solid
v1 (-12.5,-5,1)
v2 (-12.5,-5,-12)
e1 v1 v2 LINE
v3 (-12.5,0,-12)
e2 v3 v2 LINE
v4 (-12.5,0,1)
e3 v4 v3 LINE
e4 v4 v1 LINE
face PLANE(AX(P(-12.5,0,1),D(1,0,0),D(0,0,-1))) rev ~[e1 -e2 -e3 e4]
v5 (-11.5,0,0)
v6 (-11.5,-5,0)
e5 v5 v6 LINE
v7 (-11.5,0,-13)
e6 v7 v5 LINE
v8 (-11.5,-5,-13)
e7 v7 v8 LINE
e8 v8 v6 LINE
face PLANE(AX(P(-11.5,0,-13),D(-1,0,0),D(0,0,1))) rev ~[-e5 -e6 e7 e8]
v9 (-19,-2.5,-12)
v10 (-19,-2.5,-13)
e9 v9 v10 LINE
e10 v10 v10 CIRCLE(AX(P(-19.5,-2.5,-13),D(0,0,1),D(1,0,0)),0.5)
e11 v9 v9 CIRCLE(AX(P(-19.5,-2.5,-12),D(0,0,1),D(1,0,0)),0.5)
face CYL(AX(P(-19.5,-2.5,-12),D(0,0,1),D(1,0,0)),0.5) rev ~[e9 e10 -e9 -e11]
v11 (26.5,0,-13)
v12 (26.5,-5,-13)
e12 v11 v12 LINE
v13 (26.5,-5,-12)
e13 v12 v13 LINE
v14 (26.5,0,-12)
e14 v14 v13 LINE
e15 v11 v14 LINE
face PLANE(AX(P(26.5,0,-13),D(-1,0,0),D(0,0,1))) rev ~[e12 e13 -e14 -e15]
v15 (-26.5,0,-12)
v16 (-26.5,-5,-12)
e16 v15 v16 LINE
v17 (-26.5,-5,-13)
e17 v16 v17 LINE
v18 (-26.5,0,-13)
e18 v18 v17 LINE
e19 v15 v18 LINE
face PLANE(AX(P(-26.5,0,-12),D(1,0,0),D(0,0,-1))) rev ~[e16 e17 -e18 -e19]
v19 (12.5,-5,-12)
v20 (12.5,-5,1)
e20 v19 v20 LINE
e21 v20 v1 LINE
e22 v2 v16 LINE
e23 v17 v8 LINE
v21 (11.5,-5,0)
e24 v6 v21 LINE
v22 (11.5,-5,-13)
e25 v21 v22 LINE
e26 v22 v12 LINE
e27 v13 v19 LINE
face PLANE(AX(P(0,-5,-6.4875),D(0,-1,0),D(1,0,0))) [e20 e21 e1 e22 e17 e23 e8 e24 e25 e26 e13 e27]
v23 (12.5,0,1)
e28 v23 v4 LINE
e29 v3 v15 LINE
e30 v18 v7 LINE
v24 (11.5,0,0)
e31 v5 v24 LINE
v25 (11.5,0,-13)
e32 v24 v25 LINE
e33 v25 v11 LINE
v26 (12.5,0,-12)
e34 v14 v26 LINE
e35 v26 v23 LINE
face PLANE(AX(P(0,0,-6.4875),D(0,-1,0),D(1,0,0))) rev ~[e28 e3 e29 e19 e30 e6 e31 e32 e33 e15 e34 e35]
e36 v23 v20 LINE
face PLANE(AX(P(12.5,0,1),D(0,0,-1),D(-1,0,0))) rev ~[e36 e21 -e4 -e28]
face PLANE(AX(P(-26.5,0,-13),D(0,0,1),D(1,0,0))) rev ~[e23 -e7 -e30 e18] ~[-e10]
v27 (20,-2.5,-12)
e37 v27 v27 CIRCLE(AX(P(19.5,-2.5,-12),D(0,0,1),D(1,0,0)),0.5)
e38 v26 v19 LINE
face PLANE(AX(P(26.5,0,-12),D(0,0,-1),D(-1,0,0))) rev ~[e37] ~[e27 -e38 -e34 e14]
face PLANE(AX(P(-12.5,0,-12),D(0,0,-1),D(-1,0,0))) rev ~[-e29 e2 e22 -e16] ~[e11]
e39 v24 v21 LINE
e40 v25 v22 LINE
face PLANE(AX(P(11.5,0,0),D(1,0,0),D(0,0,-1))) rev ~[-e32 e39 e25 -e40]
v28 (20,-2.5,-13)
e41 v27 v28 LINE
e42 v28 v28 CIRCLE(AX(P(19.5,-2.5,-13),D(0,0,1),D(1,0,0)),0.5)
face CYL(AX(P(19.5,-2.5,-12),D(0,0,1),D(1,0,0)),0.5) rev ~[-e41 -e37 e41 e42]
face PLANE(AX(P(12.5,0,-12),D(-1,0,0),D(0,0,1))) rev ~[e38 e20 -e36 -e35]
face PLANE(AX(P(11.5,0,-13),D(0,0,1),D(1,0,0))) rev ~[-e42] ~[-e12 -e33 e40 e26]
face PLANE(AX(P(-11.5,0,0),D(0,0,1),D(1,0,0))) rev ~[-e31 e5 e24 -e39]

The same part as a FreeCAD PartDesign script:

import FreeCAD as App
import Part
import Sketcher

V = App.Vector

doc = App.newDocument("Part")
body = doc.addObject("PartDesign::Body", "Body")

# Sketch on XZ plane
sketch1 = body.newObject("Sketcher::SketchObject", "Sketch")
sketch1.AttachmentSupport = (doc.getObject("XZ_Plane"), [""])
sketch1.MapMode = "FlatFace"
sketch1.addGeometry([
    Part.LineSegment(V(-11.5, -13, 0), V(-11.5, 0, 0)),  # 0
    Part.LineSegment(V(-11.5, 0, 0), V(11.5, 0, 0)),  # 1
    Part.LineSegment(V(11.5, 0, 0), V(11.5, -13, 0)),  # 2
    Part.LineSegment(V(11.5, -13, 0), V(26.5, -13, 0)),  # 3
    Part.LineSegment(V(26.5, -13, 0), V(26.5, -12, 0)),  # 4
    Part.LineSegment(V(26.5, -12, 0), V(12.5, -12, 0)),  # 5
    Part.LineSegment(V(12.5, -12, 0), V(12.5, 1, 0)),  # 6
    Part.LineSegment(V(12.5, 1, 0), V(-12.5, 1, 0)),  # 7
    Part.LineSegment(V(-12.5, 1, 0), V(-12.5, -12, 0)),  # 8
    Part.LineSegment(V(-12.5, -12, 0), V(-26.5, -12, 0)),  # 9
    Part.LineSegment(V(-26.5, -12, 0), V(-26.5, -13, 0)),  # 10
    Part.LineSegment(V(-26.5, -13, 0), V(-11.5, -13, 0)),  # 11
], False)
sketch1.addConstraint([
    Sketcher.Constraint("Coincident", 0, 2, 1, 1),
    Sketcher.Constraint("Coincident", 1, 2, 2, 1),
    Sketcher.Constraint("Coincident", 2, 2, 3, 1),
    Sketcher.Constraint("Coincident", 3, 2, 4, 1),
    Sketcher.Constraint("Coincident", 4, 2, 5, 1),
    Sketcher.Constraint("Coincident", 5, 2, 6, 1),
    Sketcher.Constraint("Coincident", 6, 2, 7, 1),
    Sketcher.Constraint("Coincident", 7, 2, 8, 1),
    Sketcher.Constraint("Coincident", 8, 2, 9, 1),
    Sketcher.Constraint("Coincident", 9, 2, 10, 1),
    Sketcher.Constraint("Coincident", 10, 2, 11, 1),
    Sketcher.Constraint("Coincident", 11, 2, 0, 1),
    Sketcher.Constraint("Vertical", 0),
    Sketcher.Constraint("Horizontal", 1),
    Sketcher.Constraint("Vertical", 2),
    Sketcher.Constraint("Horizontal", 3),
    Sketcher.Constraint("Vertical", 4),
    Sketcher.Constraint("Horizontal", 5),
    Sketcher.Constraint("Vertical", 6),
    Sketcher.Constraint("Horizontal", 7),
    Sketcher.Constraint("Vertical", 8),
    Sketcher.Constraint("Horizontal", 9),
    Sketcher.Constraint("Vertical", 10),
    Sketcher.Constraint("Horizontal", 11),
    Sketcher.Constraint("Symmetric", 0, 2, 1, 2, -1, 1),
    Sketcher.Constraint("Symmetric", 5, 2, 8, 2, -2),
    Sketcher.Constraint("Symmetric", 3, 2, 10, 2, -2),
    Sketcher.Constraint("Equal", 2, 6),
    Sketcher.Constraint("DistanceX", 1, 1, 1, 2, 23.0),
    Sketcher.Constraint("DistanceX", 3, 1, 3, 2, 15.0),
    Sketcher.Constraint("DistanceX", 5, 2, 5, 1, 14.0),
    Sketcher.Constraint("DistanceY", 0, 1, 0, 2, 13.0),
    Sketcher.Constraint("DistanceY", 4, 1, 4, 2, 1.0),
])
pad1 = body.newObject("PartDesign::Pad", "Pad")
pad1.Profile = sketch1
pad1.Length = 5

# Sketch on XY plane
sketch2 = body.newObject("Sketcher::SketchObject", "Sketch001")
sketch2.AttachmentSupport = (doc.getObject("XY_Plane"), [""])
sketch2.MapMode = "FlatFace"
sketch2.AttachmentOffset = App.Placement(V(0, 0, -12), App.Rotation())
sketch2.addGeometry([
    Part.Circle(V(-19.5, -2.5, 0), V(0, 0, 1), 0.5),
    Part.Circle(V(19.5, -2.5, 0), V(0, 0, 1), 0.5),
], False)
sketch2.addConstraint([
    Sketcher.Constraint("Equal", 0, 1),
    Sketcher.Constraint("Symmetric", 0, 3, 1, 3, -2),
    Sketcher.Constraint("Diameter", 0, 1.0),
    Sketcher.Constraint("DistanceX", 0, 3, 1, 3, 39.0),
    Sketcher.Constraint("DistanceY", 0, 3, -1, 1, 2.5),
])
pocket1 = body.newObject("PartDesign::Pocket", "Pocket")
pocket1.Profile = sketch2
pocket1.Type = "ThroughAll"

doc.recompute()
